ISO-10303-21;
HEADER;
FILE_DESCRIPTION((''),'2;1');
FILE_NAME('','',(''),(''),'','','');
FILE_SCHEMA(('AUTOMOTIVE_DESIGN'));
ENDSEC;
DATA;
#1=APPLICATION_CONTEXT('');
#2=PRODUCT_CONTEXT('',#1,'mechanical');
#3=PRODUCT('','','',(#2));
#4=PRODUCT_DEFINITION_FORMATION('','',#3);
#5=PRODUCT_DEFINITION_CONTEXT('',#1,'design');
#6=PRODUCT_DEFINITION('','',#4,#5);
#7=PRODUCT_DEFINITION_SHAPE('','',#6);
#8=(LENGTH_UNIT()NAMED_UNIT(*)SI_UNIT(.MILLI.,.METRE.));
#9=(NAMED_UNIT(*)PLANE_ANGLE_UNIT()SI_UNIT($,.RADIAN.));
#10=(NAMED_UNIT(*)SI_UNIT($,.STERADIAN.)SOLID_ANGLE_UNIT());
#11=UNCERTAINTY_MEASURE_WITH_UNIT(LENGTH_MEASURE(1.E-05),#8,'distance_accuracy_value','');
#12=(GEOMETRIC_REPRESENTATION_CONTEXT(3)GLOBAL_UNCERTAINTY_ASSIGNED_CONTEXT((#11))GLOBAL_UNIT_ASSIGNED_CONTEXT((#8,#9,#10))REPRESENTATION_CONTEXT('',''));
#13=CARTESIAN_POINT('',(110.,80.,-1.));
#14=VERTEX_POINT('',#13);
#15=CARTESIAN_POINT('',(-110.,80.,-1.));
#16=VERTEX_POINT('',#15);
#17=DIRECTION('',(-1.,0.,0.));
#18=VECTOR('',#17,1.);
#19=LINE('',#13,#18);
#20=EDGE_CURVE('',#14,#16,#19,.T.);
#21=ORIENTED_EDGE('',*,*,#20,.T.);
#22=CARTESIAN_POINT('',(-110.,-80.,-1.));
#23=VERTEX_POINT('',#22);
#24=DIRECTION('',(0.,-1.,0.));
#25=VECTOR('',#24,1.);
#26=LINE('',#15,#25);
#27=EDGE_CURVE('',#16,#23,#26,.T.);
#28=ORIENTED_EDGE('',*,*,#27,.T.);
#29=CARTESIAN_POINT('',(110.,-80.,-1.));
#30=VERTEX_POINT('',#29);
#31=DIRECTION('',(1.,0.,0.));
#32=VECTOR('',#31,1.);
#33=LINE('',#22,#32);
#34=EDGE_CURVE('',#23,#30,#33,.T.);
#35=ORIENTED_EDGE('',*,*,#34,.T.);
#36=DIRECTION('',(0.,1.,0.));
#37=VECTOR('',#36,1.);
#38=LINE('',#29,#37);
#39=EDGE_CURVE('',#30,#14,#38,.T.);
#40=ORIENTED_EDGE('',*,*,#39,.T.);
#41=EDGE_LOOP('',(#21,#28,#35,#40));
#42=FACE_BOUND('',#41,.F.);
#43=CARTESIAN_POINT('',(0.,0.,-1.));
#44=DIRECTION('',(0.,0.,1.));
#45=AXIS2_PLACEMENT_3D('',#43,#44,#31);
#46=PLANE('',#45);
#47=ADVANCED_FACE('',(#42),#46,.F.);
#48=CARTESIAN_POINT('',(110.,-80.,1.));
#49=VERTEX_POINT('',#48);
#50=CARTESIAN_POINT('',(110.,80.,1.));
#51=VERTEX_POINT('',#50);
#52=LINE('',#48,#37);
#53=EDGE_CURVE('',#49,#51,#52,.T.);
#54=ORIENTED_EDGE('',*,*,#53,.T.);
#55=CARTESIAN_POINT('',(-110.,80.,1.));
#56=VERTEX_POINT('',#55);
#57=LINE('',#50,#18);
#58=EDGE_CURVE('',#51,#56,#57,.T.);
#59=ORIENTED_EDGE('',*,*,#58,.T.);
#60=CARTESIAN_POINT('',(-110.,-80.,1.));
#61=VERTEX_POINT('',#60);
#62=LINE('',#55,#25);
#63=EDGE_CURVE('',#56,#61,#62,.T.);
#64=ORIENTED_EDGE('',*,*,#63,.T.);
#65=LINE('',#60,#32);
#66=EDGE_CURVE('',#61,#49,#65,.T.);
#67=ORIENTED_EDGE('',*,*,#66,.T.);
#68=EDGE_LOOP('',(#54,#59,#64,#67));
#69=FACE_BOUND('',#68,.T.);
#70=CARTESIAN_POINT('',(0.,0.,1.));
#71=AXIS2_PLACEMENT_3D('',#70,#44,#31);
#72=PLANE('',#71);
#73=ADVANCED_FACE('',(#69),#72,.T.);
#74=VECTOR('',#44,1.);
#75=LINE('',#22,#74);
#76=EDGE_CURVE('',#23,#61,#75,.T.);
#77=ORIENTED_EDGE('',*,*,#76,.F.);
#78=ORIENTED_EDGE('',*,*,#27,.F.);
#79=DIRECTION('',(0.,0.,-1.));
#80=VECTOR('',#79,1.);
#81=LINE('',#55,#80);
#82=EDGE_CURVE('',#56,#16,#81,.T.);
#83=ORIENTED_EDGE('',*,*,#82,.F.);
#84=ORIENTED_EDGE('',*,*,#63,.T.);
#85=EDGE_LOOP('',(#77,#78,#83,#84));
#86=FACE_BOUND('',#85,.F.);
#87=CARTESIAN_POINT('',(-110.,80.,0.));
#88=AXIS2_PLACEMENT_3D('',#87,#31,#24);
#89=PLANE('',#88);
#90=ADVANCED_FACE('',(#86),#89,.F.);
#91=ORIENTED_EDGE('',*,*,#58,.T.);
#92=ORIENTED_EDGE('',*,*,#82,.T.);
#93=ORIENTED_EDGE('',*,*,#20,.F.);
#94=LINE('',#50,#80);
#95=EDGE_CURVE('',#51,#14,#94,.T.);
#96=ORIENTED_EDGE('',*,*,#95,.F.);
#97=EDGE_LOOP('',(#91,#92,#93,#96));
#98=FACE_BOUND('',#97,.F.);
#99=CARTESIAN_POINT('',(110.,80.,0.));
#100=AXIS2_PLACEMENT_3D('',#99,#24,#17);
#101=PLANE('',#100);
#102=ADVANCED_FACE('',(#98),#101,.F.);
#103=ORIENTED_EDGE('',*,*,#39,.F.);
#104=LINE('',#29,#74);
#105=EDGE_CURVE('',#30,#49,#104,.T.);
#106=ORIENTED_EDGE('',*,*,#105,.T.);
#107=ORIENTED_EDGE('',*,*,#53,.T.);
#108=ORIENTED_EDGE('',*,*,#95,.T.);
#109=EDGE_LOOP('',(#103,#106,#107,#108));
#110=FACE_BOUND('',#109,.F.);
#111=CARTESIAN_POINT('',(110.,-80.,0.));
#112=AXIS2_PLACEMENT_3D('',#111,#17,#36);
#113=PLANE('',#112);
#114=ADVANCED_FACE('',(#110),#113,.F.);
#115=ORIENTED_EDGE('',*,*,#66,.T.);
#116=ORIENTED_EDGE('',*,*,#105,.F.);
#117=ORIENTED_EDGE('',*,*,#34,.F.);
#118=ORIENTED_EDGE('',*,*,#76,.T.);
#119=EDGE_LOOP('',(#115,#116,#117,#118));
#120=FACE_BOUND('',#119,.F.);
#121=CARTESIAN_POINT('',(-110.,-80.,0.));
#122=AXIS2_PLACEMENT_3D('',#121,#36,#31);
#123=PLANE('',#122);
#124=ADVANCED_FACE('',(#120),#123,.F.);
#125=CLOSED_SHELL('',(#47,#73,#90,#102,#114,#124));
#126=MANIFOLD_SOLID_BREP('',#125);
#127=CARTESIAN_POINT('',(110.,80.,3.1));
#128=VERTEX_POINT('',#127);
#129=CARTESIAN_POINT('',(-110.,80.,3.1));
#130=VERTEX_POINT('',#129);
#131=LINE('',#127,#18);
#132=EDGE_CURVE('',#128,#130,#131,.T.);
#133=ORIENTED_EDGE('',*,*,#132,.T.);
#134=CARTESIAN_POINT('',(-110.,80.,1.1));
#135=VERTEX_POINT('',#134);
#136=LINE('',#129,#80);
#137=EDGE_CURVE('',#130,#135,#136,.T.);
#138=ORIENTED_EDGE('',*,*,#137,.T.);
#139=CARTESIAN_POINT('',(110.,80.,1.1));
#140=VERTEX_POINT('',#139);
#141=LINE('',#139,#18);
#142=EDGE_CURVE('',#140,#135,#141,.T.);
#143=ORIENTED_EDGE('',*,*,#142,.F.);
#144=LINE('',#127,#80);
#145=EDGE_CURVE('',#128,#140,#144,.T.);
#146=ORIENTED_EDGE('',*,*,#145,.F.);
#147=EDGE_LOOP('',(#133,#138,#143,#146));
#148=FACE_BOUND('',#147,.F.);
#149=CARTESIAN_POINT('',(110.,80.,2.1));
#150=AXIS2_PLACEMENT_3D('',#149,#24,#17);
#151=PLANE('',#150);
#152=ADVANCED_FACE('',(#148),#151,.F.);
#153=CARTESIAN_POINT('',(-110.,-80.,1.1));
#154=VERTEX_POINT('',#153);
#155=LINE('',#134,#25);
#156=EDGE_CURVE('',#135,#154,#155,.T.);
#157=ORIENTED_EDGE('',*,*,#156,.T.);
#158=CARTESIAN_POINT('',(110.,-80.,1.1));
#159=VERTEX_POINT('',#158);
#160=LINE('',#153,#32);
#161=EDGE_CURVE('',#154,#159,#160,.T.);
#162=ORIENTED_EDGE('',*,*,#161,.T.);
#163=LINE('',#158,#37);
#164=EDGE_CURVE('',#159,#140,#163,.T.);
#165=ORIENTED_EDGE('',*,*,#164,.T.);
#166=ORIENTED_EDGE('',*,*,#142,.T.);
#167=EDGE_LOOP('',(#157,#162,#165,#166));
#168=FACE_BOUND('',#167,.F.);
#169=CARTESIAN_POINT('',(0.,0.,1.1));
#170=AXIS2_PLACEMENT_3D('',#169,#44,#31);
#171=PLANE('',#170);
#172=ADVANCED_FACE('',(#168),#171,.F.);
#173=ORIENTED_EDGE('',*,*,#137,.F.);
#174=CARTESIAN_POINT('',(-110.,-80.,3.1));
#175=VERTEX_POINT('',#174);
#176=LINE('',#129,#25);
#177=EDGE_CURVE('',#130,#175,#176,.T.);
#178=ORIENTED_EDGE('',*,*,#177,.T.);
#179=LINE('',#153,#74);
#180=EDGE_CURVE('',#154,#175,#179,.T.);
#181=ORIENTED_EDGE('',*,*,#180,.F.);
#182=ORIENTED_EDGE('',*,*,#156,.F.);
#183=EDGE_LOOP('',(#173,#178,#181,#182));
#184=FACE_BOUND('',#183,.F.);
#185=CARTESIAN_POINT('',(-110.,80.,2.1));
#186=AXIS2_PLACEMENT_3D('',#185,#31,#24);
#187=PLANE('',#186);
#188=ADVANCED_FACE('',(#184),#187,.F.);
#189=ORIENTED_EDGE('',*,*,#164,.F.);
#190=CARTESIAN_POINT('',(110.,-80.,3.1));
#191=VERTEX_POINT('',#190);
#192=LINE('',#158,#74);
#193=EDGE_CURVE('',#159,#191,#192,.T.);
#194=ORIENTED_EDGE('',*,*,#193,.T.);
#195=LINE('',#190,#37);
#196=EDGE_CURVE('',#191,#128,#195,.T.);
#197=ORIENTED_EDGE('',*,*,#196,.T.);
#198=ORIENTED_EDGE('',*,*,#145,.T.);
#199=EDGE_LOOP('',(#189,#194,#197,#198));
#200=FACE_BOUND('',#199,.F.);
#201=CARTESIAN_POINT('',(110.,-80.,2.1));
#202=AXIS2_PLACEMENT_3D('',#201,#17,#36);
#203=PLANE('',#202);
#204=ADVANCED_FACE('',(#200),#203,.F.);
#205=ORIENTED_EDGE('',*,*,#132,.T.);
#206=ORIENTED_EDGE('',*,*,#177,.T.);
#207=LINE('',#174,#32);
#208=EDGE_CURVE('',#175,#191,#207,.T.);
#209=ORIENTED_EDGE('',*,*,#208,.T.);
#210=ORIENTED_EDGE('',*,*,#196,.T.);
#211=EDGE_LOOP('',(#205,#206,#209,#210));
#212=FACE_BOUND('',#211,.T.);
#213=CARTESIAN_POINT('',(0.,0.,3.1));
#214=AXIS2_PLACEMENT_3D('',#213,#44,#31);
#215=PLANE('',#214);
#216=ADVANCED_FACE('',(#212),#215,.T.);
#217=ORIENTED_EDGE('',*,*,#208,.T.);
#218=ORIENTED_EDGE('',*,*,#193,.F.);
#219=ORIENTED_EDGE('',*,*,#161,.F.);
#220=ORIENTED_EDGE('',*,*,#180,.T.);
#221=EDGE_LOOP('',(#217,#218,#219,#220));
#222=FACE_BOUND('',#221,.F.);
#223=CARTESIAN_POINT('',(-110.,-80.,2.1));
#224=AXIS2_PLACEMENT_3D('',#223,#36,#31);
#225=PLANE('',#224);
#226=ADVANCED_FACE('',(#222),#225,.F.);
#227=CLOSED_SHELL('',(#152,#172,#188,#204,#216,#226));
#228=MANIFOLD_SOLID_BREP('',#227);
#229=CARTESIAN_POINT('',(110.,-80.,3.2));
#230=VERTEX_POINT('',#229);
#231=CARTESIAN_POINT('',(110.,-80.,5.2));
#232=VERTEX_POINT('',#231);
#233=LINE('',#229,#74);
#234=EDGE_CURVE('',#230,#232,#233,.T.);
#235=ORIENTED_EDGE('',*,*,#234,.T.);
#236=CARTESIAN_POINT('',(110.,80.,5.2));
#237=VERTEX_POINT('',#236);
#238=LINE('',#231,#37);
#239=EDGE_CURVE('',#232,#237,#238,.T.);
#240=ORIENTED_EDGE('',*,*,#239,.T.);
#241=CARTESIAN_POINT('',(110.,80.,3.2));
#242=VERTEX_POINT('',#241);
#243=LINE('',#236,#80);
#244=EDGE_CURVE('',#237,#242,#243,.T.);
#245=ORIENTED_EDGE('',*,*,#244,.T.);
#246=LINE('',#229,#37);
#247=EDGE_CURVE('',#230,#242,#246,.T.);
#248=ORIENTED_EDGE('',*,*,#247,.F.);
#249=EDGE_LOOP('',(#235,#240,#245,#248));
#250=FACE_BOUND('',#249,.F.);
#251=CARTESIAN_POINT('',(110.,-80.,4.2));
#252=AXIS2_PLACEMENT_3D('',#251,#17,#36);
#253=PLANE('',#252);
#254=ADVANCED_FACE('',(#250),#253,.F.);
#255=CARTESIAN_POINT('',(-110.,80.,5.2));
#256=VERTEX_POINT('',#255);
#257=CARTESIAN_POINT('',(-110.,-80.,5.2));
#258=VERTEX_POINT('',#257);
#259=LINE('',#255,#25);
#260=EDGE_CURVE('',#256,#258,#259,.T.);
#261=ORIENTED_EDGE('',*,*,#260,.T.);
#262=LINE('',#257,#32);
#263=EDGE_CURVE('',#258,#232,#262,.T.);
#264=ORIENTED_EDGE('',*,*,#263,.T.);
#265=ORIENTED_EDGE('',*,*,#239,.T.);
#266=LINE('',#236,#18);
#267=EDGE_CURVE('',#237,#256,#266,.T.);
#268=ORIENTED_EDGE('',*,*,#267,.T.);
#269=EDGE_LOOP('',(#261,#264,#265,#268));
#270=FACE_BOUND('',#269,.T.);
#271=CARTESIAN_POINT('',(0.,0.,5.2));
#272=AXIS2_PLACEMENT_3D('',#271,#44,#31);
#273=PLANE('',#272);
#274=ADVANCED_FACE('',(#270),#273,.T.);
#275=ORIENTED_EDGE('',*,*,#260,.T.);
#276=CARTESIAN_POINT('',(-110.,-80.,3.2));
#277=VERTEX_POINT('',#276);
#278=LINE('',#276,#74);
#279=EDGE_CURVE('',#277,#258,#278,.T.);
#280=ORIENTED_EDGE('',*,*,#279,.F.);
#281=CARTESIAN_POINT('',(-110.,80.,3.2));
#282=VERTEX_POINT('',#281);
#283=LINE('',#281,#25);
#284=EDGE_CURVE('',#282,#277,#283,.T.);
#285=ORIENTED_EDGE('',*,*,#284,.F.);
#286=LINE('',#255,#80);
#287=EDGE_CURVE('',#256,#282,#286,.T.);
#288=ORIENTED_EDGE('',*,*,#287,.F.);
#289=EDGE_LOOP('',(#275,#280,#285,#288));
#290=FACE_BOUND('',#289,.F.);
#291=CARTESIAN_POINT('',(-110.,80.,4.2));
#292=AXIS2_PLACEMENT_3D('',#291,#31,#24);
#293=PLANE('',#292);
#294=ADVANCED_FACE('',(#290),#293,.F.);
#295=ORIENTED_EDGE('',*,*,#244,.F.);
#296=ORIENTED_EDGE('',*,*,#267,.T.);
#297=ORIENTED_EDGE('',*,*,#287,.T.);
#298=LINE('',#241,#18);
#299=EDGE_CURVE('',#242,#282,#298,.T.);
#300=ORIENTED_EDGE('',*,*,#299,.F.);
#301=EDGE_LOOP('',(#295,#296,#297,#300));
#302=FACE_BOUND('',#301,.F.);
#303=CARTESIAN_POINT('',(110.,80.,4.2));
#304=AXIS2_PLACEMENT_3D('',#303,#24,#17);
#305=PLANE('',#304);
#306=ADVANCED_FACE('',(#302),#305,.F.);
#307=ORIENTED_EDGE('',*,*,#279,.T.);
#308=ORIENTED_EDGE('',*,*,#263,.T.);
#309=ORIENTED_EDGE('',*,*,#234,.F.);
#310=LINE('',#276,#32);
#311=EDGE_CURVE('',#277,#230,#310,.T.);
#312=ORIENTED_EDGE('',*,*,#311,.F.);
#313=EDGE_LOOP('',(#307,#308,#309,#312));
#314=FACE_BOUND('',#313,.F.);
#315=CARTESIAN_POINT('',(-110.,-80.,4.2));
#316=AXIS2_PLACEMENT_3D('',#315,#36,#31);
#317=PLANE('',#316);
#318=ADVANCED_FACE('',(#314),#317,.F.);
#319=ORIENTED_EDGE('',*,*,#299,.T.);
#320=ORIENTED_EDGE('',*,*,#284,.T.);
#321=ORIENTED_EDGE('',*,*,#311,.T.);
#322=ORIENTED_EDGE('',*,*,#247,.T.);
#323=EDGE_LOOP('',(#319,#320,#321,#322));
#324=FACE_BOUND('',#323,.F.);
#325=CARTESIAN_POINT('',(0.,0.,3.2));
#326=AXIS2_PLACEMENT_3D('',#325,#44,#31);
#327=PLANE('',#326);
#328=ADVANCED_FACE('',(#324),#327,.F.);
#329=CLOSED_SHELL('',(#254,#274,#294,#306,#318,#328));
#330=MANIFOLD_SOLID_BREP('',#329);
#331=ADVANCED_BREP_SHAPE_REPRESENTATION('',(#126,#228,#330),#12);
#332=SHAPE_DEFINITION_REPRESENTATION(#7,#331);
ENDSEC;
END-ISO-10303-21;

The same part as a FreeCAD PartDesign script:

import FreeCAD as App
import Part
import Sketcher


def add_polygon(sketch, points):
    """Adds a closed chain of lines whose ends are joined by coincident constraints."""
    first, n = sketch.GeometryCount, len(points)
    for a, b in zip(points, points[1:] + points[:1]):
        sketch.addGeometry(Part.LineSegment(App.Vector(*a, 0), App.Vector(*b, 0)), False)
    for i in range(n):
        sketch.addConstraint(Sketcher.Constraint("Coincident", first + i, 2, first + (i + 1) % n, 1))

doc = App.newDocument("Part")
body = doc.addObject("PartDesign::Body", "Body")
body.AllowCompound = True

# Sketch on XY plane
sketch1 = doc.addObject("Sketcher::SketchObject", "Sketch")
body.addObject(sketch1)
sketch1.AttachmentSupport = (doc.XY_Plane, [""])
sketch1.MapMode = "FlatFace"
add_polygon(sketch1, [(-110, 80), (-110, -80), (110, -80), (110, 80)])  # lines 0-3
sketch1.addConstraint([
    Sketcher.Constraint("Vertical", 0),
    Sketcher.Constraint("Horizontal", 1),
    Sketcher.Constraint("Vertical", 2),
    Sketcher.Constraint("Horizontal", 3),
    Sketcher.Constraint("Symmetric", 0, 2, 2, 2, -1, 1),
    Sketcher.Constraint("DistanceX", 1, 1, 1, 2, 220.0),
    Sketcher.Constraint("DistanceY", 0, 2, 0, 1, 160.0),
])
pad1 = doc.addObject("PartDesign::Pad", "Pad")
body.addObject(pad1)
pad1.Profile = sketch1
pad1.Length = 2
pad1.Midplane = True
doc.recompute()

linearpattern = doc.addObject("PartDesign::LinearPattern", "LinearPattern")
body.addObject(linearpattern)
linearpattern.Originals = [pad1]
linearpattern.Direction = (doc.Z_Axis, [""])
linearpattern.Mode = "offset"
linearpattern.Offset = 2.1
linearpattern.Occurrences = 3
body.Tip = linearpattern

doc.recompute()
